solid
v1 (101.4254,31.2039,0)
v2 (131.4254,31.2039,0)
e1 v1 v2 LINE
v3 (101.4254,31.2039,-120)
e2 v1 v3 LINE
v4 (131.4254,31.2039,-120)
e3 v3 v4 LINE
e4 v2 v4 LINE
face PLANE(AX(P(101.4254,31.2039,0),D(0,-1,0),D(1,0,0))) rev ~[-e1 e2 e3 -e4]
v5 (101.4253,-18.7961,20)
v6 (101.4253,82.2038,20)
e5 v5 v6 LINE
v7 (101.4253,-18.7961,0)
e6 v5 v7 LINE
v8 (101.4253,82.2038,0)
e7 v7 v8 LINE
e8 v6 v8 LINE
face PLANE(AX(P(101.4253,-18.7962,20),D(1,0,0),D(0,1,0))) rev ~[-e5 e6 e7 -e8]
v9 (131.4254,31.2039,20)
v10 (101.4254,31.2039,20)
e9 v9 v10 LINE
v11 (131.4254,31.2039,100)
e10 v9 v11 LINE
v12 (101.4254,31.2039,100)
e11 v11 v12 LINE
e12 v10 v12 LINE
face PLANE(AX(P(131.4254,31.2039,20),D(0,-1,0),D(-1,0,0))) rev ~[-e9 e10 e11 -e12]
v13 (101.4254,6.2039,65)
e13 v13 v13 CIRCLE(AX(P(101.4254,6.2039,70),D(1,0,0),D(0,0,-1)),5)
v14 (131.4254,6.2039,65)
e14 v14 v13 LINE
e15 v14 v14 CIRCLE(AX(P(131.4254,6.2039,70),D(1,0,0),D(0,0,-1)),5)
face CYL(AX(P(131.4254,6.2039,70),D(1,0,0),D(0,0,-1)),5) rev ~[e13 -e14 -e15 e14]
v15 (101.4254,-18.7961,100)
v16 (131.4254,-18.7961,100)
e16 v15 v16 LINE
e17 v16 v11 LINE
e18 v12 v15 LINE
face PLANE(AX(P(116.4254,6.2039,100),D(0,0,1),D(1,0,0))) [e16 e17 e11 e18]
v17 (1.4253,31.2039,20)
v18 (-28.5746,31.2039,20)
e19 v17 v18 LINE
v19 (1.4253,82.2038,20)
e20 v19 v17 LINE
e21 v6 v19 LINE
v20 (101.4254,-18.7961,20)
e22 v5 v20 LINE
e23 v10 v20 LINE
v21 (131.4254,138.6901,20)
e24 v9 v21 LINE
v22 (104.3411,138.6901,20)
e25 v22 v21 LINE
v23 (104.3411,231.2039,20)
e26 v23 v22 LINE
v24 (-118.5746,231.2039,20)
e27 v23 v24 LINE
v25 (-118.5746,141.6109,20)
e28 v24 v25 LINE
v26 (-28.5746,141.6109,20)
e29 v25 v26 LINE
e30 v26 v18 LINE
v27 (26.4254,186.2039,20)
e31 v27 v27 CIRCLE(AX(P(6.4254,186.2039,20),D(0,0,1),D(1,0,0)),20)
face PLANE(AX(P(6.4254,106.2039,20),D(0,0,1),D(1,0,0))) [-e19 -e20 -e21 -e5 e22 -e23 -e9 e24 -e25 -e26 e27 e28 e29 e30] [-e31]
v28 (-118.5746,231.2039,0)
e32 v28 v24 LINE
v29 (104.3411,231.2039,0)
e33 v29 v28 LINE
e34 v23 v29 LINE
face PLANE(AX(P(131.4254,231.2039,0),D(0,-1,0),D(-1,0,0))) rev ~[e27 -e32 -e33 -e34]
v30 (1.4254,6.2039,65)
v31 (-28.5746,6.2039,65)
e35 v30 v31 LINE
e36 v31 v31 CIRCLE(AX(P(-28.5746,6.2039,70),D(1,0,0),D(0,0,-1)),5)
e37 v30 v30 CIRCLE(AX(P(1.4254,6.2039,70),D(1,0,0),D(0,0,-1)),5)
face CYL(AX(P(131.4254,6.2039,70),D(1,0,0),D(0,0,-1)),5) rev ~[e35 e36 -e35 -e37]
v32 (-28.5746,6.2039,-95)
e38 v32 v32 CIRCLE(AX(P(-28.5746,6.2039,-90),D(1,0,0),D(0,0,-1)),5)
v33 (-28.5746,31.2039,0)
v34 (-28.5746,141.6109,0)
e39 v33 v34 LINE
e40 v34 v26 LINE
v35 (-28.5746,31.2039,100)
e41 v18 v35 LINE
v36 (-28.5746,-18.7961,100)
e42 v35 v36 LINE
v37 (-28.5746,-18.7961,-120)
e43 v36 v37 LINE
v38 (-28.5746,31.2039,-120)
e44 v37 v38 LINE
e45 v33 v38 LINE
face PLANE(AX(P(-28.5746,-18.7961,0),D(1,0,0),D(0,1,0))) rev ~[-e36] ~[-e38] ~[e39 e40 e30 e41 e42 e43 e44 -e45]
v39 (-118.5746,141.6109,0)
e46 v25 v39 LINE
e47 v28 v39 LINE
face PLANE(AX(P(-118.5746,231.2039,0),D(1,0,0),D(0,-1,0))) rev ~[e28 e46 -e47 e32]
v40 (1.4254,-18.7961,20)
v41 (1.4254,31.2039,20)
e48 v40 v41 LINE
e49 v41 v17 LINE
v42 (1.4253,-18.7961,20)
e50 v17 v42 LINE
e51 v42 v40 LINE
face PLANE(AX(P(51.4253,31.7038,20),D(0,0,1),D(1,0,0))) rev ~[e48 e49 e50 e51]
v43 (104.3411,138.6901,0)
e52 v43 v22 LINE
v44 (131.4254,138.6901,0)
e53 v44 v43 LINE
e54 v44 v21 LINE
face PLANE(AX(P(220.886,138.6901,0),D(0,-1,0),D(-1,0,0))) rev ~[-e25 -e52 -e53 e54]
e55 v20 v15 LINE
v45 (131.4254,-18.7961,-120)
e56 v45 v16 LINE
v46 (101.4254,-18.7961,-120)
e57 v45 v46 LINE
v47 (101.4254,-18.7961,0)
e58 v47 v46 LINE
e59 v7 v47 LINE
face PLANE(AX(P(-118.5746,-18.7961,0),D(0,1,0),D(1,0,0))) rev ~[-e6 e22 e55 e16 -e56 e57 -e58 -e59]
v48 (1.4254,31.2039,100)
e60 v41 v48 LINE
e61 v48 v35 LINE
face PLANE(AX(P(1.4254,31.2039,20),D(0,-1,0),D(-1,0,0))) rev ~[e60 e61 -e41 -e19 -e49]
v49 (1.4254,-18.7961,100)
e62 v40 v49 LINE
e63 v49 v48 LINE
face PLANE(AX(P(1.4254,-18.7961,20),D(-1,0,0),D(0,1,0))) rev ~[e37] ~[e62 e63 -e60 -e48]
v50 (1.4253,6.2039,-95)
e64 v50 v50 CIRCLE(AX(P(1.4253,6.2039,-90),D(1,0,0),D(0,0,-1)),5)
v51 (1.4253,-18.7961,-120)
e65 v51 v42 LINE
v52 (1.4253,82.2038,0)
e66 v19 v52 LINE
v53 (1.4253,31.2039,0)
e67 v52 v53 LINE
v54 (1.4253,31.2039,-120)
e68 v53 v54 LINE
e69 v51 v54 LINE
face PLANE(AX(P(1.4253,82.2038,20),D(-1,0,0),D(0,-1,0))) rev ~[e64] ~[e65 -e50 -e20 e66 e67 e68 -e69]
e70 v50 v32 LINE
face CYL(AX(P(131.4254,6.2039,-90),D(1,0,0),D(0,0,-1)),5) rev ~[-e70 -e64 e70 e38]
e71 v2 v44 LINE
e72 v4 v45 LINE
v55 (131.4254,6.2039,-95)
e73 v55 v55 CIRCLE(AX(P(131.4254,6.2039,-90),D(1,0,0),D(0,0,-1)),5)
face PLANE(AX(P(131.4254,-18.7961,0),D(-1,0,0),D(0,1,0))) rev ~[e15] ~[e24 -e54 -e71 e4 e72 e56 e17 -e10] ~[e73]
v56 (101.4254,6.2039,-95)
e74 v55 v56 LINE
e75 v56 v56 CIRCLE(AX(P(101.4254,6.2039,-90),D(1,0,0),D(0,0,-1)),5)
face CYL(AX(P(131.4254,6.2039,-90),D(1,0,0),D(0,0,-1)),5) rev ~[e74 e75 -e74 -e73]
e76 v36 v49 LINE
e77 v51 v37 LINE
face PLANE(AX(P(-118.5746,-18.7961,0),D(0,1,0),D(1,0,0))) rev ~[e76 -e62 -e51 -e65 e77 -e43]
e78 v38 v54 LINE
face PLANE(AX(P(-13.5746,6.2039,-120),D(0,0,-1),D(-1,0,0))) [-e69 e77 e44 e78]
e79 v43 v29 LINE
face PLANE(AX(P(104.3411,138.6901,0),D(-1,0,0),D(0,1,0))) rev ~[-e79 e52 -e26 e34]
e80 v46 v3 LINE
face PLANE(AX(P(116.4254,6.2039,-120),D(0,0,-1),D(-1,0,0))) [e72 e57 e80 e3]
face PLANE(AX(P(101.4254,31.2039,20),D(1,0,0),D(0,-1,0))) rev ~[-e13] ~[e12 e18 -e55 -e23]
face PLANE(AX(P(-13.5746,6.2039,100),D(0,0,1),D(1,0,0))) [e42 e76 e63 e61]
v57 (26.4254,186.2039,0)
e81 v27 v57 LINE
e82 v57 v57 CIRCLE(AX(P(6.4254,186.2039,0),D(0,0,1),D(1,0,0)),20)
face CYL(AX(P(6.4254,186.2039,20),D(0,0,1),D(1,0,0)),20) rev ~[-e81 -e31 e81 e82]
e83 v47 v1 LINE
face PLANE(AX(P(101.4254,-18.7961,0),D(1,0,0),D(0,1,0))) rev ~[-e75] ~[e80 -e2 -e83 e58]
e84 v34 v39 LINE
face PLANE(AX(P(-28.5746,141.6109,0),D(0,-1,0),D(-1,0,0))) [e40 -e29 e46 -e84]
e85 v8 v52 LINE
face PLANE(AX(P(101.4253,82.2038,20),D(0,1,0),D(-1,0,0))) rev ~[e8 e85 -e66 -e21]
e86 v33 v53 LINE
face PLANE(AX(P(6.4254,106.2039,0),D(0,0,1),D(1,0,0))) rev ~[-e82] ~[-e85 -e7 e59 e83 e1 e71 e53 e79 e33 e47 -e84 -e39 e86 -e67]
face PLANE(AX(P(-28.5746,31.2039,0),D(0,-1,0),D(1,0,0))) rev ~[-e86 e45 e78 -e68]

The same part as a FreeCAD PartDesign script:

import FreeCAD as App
import Part
import Sketcher
from FreeCAD import Vector

doc = App.newDocument("Part")
body = doc.addObject("PartDesign::Body", "Body")

# Sketch on XY plane
sketch1 = doc.addObject("Sketcher::SketchObject", "Sketch")
body.addObject(sketch1)
sketch1.AttachmentSupport = (doc.XY_Plane, [""])
sketch1.MapMode = "FlatFace"
sketch1.addGeometry(Part.LineSegment(Vector(-119, 231, 0), Vector(-119, -19, 0)), False)
sketch1.addGeometry(Part.LineSegment(Vector(-119, -19, 0), Vector(131, -19, 0)), False)
sketch1.addGeometry(Part.LineSegment(Vector(131, -19, 0), Vector(131, 231, 0)), False)
sketch1.addGeometry(Part.LineSegment(Vector(131, 231, 0), Vector(-119, 231, 0)), False)
sketch1.addConstraint(Sketcher.Constraint("Coincident", 0, 2, 1, 1))
sketch1.addConstraint(Sketcher.Constraint("Coincident", 1, 2, 2, 1))
sketch1.addConstraint(Sketcher.Constraint("Coincident", 2, 2, 3, 1))
sketch1.addConstraint(Sketcher.Constraint("Coincident", 3, 2, 0, 1))
sketch1.addConstraint(Sketcher.Constraint("Vertical", 0))
sketch1.addConstraint(Sketcher.Constraint("Horizontal", 1))
sketch1.addConstraint(Sketcher.Constraint("Vertical", 2))
sketch1.addConstraint(Sketcher.Constraint("Horizontal", 3))
sketch1.addConstraint(Sketcher.Constraint("Equal", 3, 0))
sketch1.addConstraint(Sketcher.Constraint("DistanceX", 1, 1, 1, 2, 250.0))
sketch1.addConstraint(Sketcher.Constraint("DistanceX", 0, 2, -1, 1, 118.5746))
sketch1.addConstraint(Sketcher.Constraint("DistanceY", 0, 2, -1, 1, 18.796))
pad1 = doc.addObject("PartDesign::Pad", "Pad")
body.addObject(pad1)
pad1.Profile = sketch1
pad1.Length = 20

# Sketch on XY plane
sketch2 = doc.addObject("Sketcher::SketchObject", "Sketch001")
body.addObject(sketch2)
sketch2.AttachmentSupport = (doc.XY_Plane, [""])
sketch2.MapMode = "FlatFace"
sketch2.AttachmentOffset = App.Placement(Vector(0, 0, 20), App.Rotation())
sketch2.addGeometry(Part.Circle(Vector(6, 186, 0), Vector(0, 0, 1), 20), False)
sketch2.addConstraint(Sketcher.Constraint("Diameter", 0, 40.0))
sketch2.addConstraint(Sketcher.Constraint("DistanceY", -1, 1, 0, 3, 186.204))
sketch2.addConstraint(Sketcher.Constraint("DistanceX", -1, 1, 0, 3, 6.4254))
pocket1 = doc.addObject("PartDesign::Pocket", "Pocket")
body.addObject(pocket1)
pocket1.Profile = sketch2
pocket1.Type = "ThroughAll"

# Sketch on XY plane
sketch3 = doc.addObject("Sketcher::SketchObject", "Sketch002")
body.addObject(sketch3)
sketch3.AttachmentSupport = (doc.XY_Plane, [""])
sketch3.MapMode = "FlatFace"
sketch3.addGeometry(Part.LineSegment(Vector(131, 31, 0), Vector(131, -19, 0)), False)
sketch3.addGeometry(Part.LineSegment(Vector(131, -19, 0), Vector(101, -19, 0)), False)
sketch3.addGeometry(Part.LineSegment(Vector(101, -19, 0), Vector(101, 31, 0)), False)
sketch3.addGeometry(Part.LineSegment(Vector(101, 31, 0), Vector(131, 31, 0)), False)
sketch3.addGeometry(Part.LineSegment(Vector(1, -19, 0), Vector(-29, -19, 0)), False)
sketch3.addGeometry(Part.LineSegment(Vector(-29, -19, 0), Vector(-29, 31, 0)), False)
sketch3.addGeometry(Part.LineSegment(Vector(-29, 31, 0), Vector(1, 31, 0)), False)
sketch3.addGeometry(Part.LineSegment(Vector(1, 31, 0), Vector(1, -19, 0)), False)
sketch3.addConstraint(Sketcher.Constraint("Coincident", 0, 2, 1, 1))
sketch3.addConstraint(Sketcher.Constraint("Coincident", 1, 2, 2, 1))
sketch3.addConstraint(Sketcher.Constraint("Coincident", 2, 2, 3, 1))
sketch3.addConstraint(Sketcher.Constraint("Coincident", 3, 2, 0, 1))
sketch3.addConstraint(Sketcher.Constraint("Coincident", 4, 2, 5, 1))
sketch3.addConstraint(Sketcher.Constraint("Coincident", 5, 2, 6, 1))
sketch3.addConstraint(Sketcher.Constraint("Coincident", 6, 2, 7, 1))
sketch3.addConstraint(Sketcher.Constraint("Coincident", 7, 2, 4, 1))
sketch3.addConstraint(Sketcher.Constraint("Vertical", 0))
sketch3.addConstraint(Sketcher.Constraint("Horizontal", 1))
sketch3.addConstraint(Sketcher.Constraint("Vertical", 2))
sketch3.addConstraint(Sketcher.Constraint("Horizontal", 3))
sketch3.addConstraint(Sketcher.Constraint("Horizontal", 4))
sketch3.addConstraint(Sketcher.Constraint("Vertical", 5))
sketch3.addConstraint(Sketcher.Constraint("Horizontal", 6))
sketch3.addConstraint(Sketcher.Constraint("Vertical", 7))
sketch3.addConstraint(Sketcher.Constraint("Horizontal", 1, 2, 4, 2))
sketch3.addConstraint(Sketcher.Constraint("Horizontal", 3, 2, 5, 2))
sketch3.addConstraint(Sketcher.Constraint("Equal", 3, 4))
sketch3.addConstraint(Sketcher.Constraint("DistanceX", 1, 2, 1, 1, 30.0))
sketch3.addConstraint(Sketcher.Constraint("DistanceX", 6, 2, 2, 2, 100.0))
sketch3.addConstraint(Sketcher.Constraint("DistanceY", 0, 2, 0, 1, 50.0))
sketch3.addConstraint(Sketcher.Constraint("DistanceY", 0, 2, -1, 1, 18.796))
sketch3.addConstraint(Sketcher.Constraint("DistanceX", -1, 1, 0, 2, 131.4254))
pad2 = doc.addObject("PartDesign::Pad", "Pad001")
body.addObject(pad2)
pad2.Profile = sketch3
pad2.Length = 120
pad2.Reversed = True

# Sketch on XY plane
sketch4 = doc.addObject("Sketcher::SketchObject", "Sketch003")
body.addObject(sketch4)
sketch4.AttachmentSupport = (doc.XY_Plane, [""])
sketch4.MapMode = "FlatFace"
sketch4.AttachmentOffset = App.Placement(Vector(0, 0, 20), App.Rotation())
sketch4.addGeometry(Part.LineSegment(Vector(1, -19, 0), Vector(1, 31, 0)), False)
sketch4.addGeometry(Part.LineSegment(Vector(1, 31, 0), Vector(-29, 31, 0)), False)
sketch4.addGeometry(Part.LineSegment(Vector(-29, 31, 0), Vector(-29, -19, 0)), False)
sketch4.addGeometry(Part.LineSegment(Vector(-29, -19, 0), Vector(1, -19, 0)), False)
sketch4.addGeometry(Part.LineSegment(Vector(101, -19, 0), Vector(131, -19, 0)), False)
sketch4.addGeometry(Part.LineSegment(Vector(131, -19, 0), Vector(131, 31, 0)), False)
sketch4.addGeometry(Part.LineSegment(Vector(131, 31, 0), Vector(101, 31, 0)), False)
sketch4.addGeometry(Part.LineSegment(Vector(101, 31, 0), Vector(101, -19, 0)), False)
sketch4.addConstraint(Sketcher.Constraint("Coincident", 0, 2, 1, 1))
sketch4.addConstraint(Sketcher.Constraint("Coincident", 1, 2, 2, 1))
sketch4.addConstraint(Sketcher.Constraint("Coincident", 2, 2, 3, 1))
sketch4.addConstraint(Sketcher.Constraint("Coincident", 3, 2, 0, 1))
sketch4.addConstraint(Sketcher.Constraint("Coincident", 4, 2, 5, 1))
sketch4.addConstraint(Sketcher.Constraint("Coincident", 5, 2, 6, 1))
sketch4.addConstraint(Sketcher.Constraint("Coincident", 6, 2, 7, 1))
sketch4.addConstraint(Sketcher.Constraint("Coincident", 7, 2, 4, 1))
sketch4.addConstraint(Sketcher.Constraint("Vertical", 0))
sketch4.addConstraint(Sketcher.Constraint("Horizontal", 1))
sketch4.addConstraint(Sketcher.Constraint("Vertical", 2))
sketch4.addConstraint(Sketcher.Constraint("Horizontal", 3))
sketch4.addConstraint(Sketcher.Constraint("Horizontal", 4))
sketch4.addConstraint(Sketcher.Constraint("Vertical", 5))
sketch4.addConstraint(Sketcher.Constraint("Horizontal", 6))
sketch4.addConstraint(Sketcher.Constraint("Vertical", 7))
sketch4.addConstraint(Sketcher.Constraint("Horizontal", 3, 2, 4, 2))
sketch4.addConstraint(Sketcher.Constraint("Horizontal", 1, 2, 5, 2))
sketch4.addConstraint(Sketcher.Constraint("Equal", 3, 4))
sketch4.addConstraint(Sketcher.Constraint("DistanceX", 0, 2, 6, 2, 100.0))
sketch4.addConstraint(Sketcher.Constraint("DistanceX", 1, 2, 1, 1, 30.0))
sketch4.addConstraint(Sketcher.Constraint("DistanceY", 0, 1, 0, 2, 50.0))
sketch4.addConstraint(Sketcher.Constraint("DistanceY", -1, 1, 0, 2, 31.204))
sketch4.addConstraint(Sketcher.Constraint("DistanceX", -1, 1, 0, 2, 1.4254))
pad3 = doc.addObject("PartDesign::Pad", "Pad002")
body.addObject(pad3)
pad3.Profile = sketch4
pad3.Length = 80

# Sketch on YZ plane
sketch5 = doc.addObject("Sketcher::SketchObject", "Sketch004")
body.addObject(sketch5)
sketch5.AttachmentSupport = (doc.YZ_Plane, [""])
sketch5.MapMode = "FlatFace"
sketch5.AttachmentOffset = App.Placement(Vector(0, 0, 131.4254), App.Rotation())
sketch5.addGeometry(Part.Circle(Vector(6, -90, 0), Vector(0, 0, 1), 5), False)
sketch5.addGeometry(Part.Circle(Vector(6, 70, 0), Vector(0, 0, 1), 5), False)
sketch5.addConstraint(Sketcher.Constraint("Equal", 0, 1))
sketch5.addConstraint(Sketcher.Constraint("Vertical", 0, 3, 1, 3))
sketch5.addConstraint(Sketcher.Constraint("Diameter", 0, 10.0))
sketch5.addConstraint(Sketcher.Constraint("DistanceY", 0, 3, -1, 1, 90.0))
sketch5.addConstraint(Sketcher.Constraint("DistanceY", -1, 1, 1, 3, 70.0))
sketch5.addConstraint(Sketcher.Constraint("DistanceX", -1, 1, 0, 3, 6.204))
pocket2 = doc.addObject("PartDesign::Pocket", "Pocket001")
body.addObject(pocket2)
pocket2.Profile = sketch5
pocket2.Type = "ThroughAll"

# Sketch on XY plane
sketch6 = doc.addObject("Sketcher::SketchObject", "Sketch005")
body.addObject(sketch6)
sketch6.AttachmentSupport = (doc.XY_Plane, [""])
sketch6.MapMode = "FlatFace"
sketch6.AttachmentOffset = App.Placement(Vector(0, 0, 20), App.Rotation())
sketch6.addGeometry(Part.LineSegment(Vector(1, -19, 0), Vector(101, -19, 0)), False)
sketch6.addGeometry(Part.LineSegment(Vector(101, -19, 0), Vector(101, 82, 0)), False)
sketch6.addGeometry(Part.LineSegment(Vector(101, 82, 0), Vector(1, 82, 0)), False)
sketch6.addGeometry(Part.LineSegment(Vector(1, 82, 0), Vector(1, -19, 0)), False)
sketch6.addConstraint(Sketcher.Constraint("Coincident", 0, 2, 1, 1))
sketch6.addConstraint(Sketcher.Constraint("Coincident", 1, 2, 2, 1))
sketch6.addConstraint(Sketcher.Constraint("Coincident", 2, 2, 3, 1))
sketch6.addConstraint(Sketcher.Constraint("Coincident", 3, 2, 0, 1))
sketch6.addConstraint(Sketcher.Constraint("Horizontal", 0))
sketch6.addConstraint(Sketcher.Constraint("Vertical", 1))
sketch6.addConstraint(Sketcher.Constraint("Horizontal", 2))
sketch6.addConstraint(Sketcher.Constraint("Vertical", 3))
sketch6.addConstraint(Sketcher.Constraint("DistanceX", 0, 1, 0, 2, 100.0))
sketch6.addConstraint(Sketcher.Constraint("DistanceY", 1, 1, 1, 2, 101.0))
sketch6.addConstraint(Sketcher.Constraint("DistanceX", -1, 1, 0, 2, 101.4253))
sketch6.addConstraint(Sketcher.Constraint("DistanceY", 0, 2, -1, 1, 18.7962))
pocket3 = doc.addObject("PartDesign::Pocket", "Pocket002")
body.addObject(pocket3)
pocket3.Profile = sketch6
pocket3.Type = "ThroughAll"

# Sketch on XY plane
sketch7 = doc.addObject("Sketcher::SketchObject", "Sketch006")
body.addObject(sketch7)
sketch7.AttachmentSupport = (doc.XY_Plane, [""])
sketch7.MapMode = "FlatFace"
sketch7.addGeometry(Part.LineSegment(Vector(221, 139, 0), Vector(104, 139, 0)), False)
sketch7.addGeometry(Part.LineSegment(Vector(104, 139, 0), Vector(104, 236, 0)), False)
sketch7.addGeometry(Part.LineSegment(Vector(104, 236, 0), Vector(221, 236, 0)), False)
sketch7.addGeometry(Part.LineSegment(Vector(221, 236, 0), Vector(221, 139, 0)), False)
sketch7.addGeometry(Part.LineSegment(Vector(-29, 142, 0), Vector(-29, -19, 0)), False)
sketch7.addGeometry(Part.LineSegment(Vector(-29, -19, 0), Vector(-127, -19, 0)), False)
sketch7.addGeometry(Part.LineSegment(Vector(-127, -19, 0), Vector(-127, 142, 0)), False)
sketch7.addGeometry(Part.LineSegment(Vector(-127, 142, 0), Vector(-29, 142, 0)), False)
sketch7.addConstraint(Sketcher.Constraint("Coincident", 0, 2, 1, 1))
sketch7.addConstraint(Sketcher.Constraint("Coincident", 1, 2, 2, 1))
sketch7.addConstraint(Sketcher.Constraint("Coincident", 2, 2, 3, 1))
sketch7.addConstraint(Sketcher.Constraint("Coincident", 3, 2, 0, 1))
sketch7.addConstraint(Sketcher.Constraint("Coincident", 4, 2, 5, 1))
sketch7.addConstraint(Sketcher.Constraint("Coincident", 5, 2, 6, 1))
sketch7.addConstraint(Sketcher.Constraint("Coincident", 6, 2, 7, 1))
sketch7.addConstraint(Sketcher.Constraint("Coincident", 7, 2, 4, 1))
sketch7.addConstraint(Sketcher.Constraint("Horizontal", 0))
sketch7.addConstraint(Sketcher.Constraint("Vertical", 1))
sketch7.addConstraint(Sketcher.Constraint("Horizontal", 2))
sketch7.addConstraint(Sketcher.Constraint("Vertical", 3))
sketch7.addConstraint(Sketcher.Constraint("Vertical", 4))
sketch7.addConstraint(Sketcher.Constraint("Horizontal", 5))
sketch7.addConstraint(Sketcher.Constraint("Vertical", 6))
sketch7.addConstraint(Sketcher.Constraint("Horizontal", 7))
sketch7.addConstraint(Sketcher.Constraint("DistanceX", 0, 2, 0, 1, 116.545))
sketch7.addConstraint(Sketcher.Constraint("DistanceY", 4, 2, 4, 1, 160.407))
sketch7.addConstraint(Sketcher.Constraint("DistanceY", -1, 1, 0, 2, 138.69))
sketch7.addConstraint(Sketcher.Constraint("DistanceX", 5, 2, 5, 1, 98.9057))
sketch7.addConstraint(Sketcher.Constraint("DistanceY", 1, 1, 1, 2, 96.9025))
sketch7.addConstraint(Sketcher.Constraint("DistanceX", -1, 1, 0, 2, 104.341))
sketch7.addConstraint(Sketcher.Constraint("DistanceY", 4, 2, -1, 1, 18.796))
sketch7.addConstraint(Sketcher.Constraint("DistanceX", 4, 2, -1, 1, 28.5746))
pocket4 = doc.addObject("PartDesign::Pocket", "Pocket003")
body.addObject(pocket4)
pocket4.Profile = sketch7
pocket4.Type = "ThroughAll"
pocket4.Reversed = True

doc.recompute()
